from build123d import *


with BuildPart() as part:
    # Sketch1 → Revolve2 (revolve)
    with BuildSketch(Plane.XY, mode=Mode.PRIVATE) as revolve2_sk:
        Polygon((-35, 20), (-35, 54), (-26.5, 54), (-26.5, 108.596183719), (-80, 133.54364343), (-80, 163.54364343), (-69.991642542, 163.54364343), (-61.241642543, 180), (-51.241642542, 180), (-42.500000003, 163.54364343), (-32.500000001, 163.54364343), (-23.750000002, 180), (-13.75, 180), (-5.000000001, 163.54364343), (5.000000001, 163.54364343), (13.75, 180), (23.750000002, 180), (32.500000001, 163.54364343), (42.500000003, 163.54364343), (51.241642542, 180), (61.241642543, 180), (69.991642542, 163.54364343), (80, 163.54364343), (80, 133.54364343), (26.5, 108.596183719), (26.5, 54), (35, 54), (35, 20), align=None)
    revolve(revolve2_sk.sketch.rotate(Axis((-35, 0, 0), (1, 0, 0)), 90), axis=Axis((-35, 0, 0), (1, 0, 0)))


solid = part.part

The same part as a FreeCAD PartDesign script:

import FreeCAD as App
import Part
import Sketcher
from FreeCAD import Vector
Q = App.Units.Quantity

doc = App.newDocument("Part")
body = doc.addObject("PartDesign::Body", "Body")

sketch1 = body.newObject("Sketcher::SketchObject", "Sketch")
sketch1.AttachmentSupport = (doc.getObject("XY_Plane"), [""])
sketch1.MapMode = "FlatFace"
sketch1.addGeometry([
    Part.LineSegment(Vector(-35, 54, 0), Vector(-35, 20, 0)),
    Part.LineSegment(Vector(-35, 20, 0), Vector(35, 20, 0)),
    Part.LineSegment(Vector(35, 20, 0), Vector(35, 54, 0)),
    Part.LineSegment(Vector(35, 54, 0), Vector(26, 54, 0)),
    Part.LineSegment(Vector(26, 54, 0), Vector(26, 109, 0)),
    Part.LineSegment(Vector(26, 109, 0), Vector(80, 134, 0)),
    Part.LineSegment(Vector(80, 134, 0), Vector(80, 164, 0)),
    Part.LineSegment(Vector(80, 164, 0), Vector(70, 164, 0)),
    Part.LineSegment(Vector(70, 164, 0), Vector(61, 180, 0)),
    Part.LineSegment(Vector(61, 180, 0), Vector(51, 180, 0)),
    Part.LineSegment(Vector(51, 180, 0), Vector(43, 164, 0)),
    Part.LineSegment(Vector(43, 164, 0), Vector(33, 164, 0)),
    Part.LineSegment(Vector(33, 164, 0), Vector(24, 180, 0)),
    Part.LineSegment(Vector(24, 180, 0), Vector(14, 180, 0)),
    Part.LineSegment(Vector(14, 180, 0), Vector(5, 164, 0)),
    Part.LineSegment(Vector(5, 164, 0), Vector(-5, 164, 0)),
    Part.LineSegment(Vector(-5, 164, 0), Vector(-14, 180, 0)),
    Part.LineSegment(Vector(-14, 180, 0), Vector(-24, 180, 0)),
    Part.LineSegment(Vector(-24, 180, 0), Vector(-33, 164, 0)),
    Part.LineSegment(Vector(-33, 164, 0), Vector(-43, 164, 0)),
    Part.LineSegment(Vector(-43, 164, 0), Vector(-51, 180, 0)),
    Part.LineSegment(Vector(-51, 180, 0), Vector(-61, 180, 0)),
    Part.LineSegment(Vector(-61, 180, 0), Vector(-70, 164, 0)),
    Part.LineSegment(Vector(-70, 164, 0), Vector(-80, 164, 0)),
    Part.LineSegment(Vector(-80, 164, 0), Vector(-80, 134, 0)),
    Part.LineSegment(Vector(-80, 134, 0), Vector(-26, 109, 0)),
    Part.LineSegment(Vector(-26, 109, 0), Vector(-26, 54, 0)),
    Part.LineSegment(Vector(-26, 54, 0), Vector(-35, 54, 0)),
], False)
sketch1.addConstraint([
    Sketcher.Constraint("Coincident", 0, 2, 1, 1),
    Sketcher.Constraint("Coincident", 1, 2, 2, 1),
    Sketcher.Constraint("Coincident", 2, 2, 3, 1),
    Sketcher.Constraint("Coincident", 3, 2, 4, 1),
    Sketcher.Constraint("Coincident", 4, 2, 5, 1),
    Sketcher.Constraint("Coincident", 5, 2, 6, 1),
    Sketcher.Constraint("Coincident", 6, 2, 7, 1),
    Sketcher.Constraint("Coincident", 7, 2, 8, 1),
    Sketcher.Constraint("Coincident", 8, 2, 9, 1),
    Sketcher.Constraint("Coincident", 9, 2, 10, 1),
    Sketcher.Constraint("Coincident", 10, 2, 11, 1),
    Sketcher.Constraint("Coincident", 11, 2, 12, 1),
    Sketcher.Constraint("Coincident", 12, 2, 13, 1),
    Sketcher.Constraint("Coincident", 13, 2, 14, 1),
    Sketcher.Constraint("Coincident", 14, 2, 15, 1),
    Sketcher.Constraint("Coincident", 15, 2, 16, 1),
    Sketcher.Constraint("Coincident", 16, 2, 17, 1),
    Sketcher.Constraint("Coincident", 17, 2, 18, 1),
    Sketcher.Constraint("Coincident", 18, 2, 19, 1),
    Sketcher.Constraint("Coincident", 19, 2, 20, 1),
    Sketcher.Constraint("Coincident", 20, 2, 21, 1),
    Sketcher.Constraint("Coincident", 21, 2, 22, 1),
    Sketcher.Constraint("Coincident", 22, 2, 23, 1),
    Sketcher.Constraint("Coincident", 23, 2, 24, 1),
    Sketcher.Constraint("Coincident", 24, 2, 25, 1),
    Sketcher.Constraint("Coincident", 25, 2, 26, 1),
    Sketcher.Constraint("Coincident", 26, 2, 27, 1),
    Sketcher.Constraint("Coincident", 27, 2, 0, 1),
    Sketcher.Constraint("Vertical", 0),
    Sketcher.Constraint("Horizontal", 1),
    Sketcher.Constraint("Vertical", 2),
    Sketcher.Constraint("Horizontal", 3),
    Sketcher.Constraint("Vertical", 4),
    Sketcher.Constraint("Vertical", 6),
    Sketcher.Constraint("Horizontal", 7),
    Sketcher.Constraint("Horizontal", 9),
    Sketcher.Constraint("Horizontal", 11),
    Sketcher.Constraint("Horizontal", 13),
    Sketcher.Constraint("Horizontal", 15),
    Sketcher.Constraint("Horizontal", 17),
    Sketcher.Constraint("Horizontal", 19),
    Sketcher.Constraint("Horizontal", 21),
    Sketcher.Constraint("Horizontal", 23),
    Sketcher.Constraint("Vertical", 24),
    Sketcher.Constraint("Vertical", 26),
    Sketcher.Constraint("Horizontal", 27),
    Sketcher.Constraint("Symmetric", 13, 2, 16, 2, -2),
    Sketcher.Constraint("Symmetric", 11, 2, 18, 2, -2),
    Sketcher.Constraint("Symmetric", 9, 2, 20, 2, -2),
    Sketcher.Constraint("Symmetric", 7, 2, 22, 2, -2),
    Sketcher.Constraint("Symmetric", 5, 2, 24, 2, -2),
    Sketcher.Constraint("Symmetric", 4, 2, 25, 2, -2),
    Sketcher.Constraint("Symmetric", 2, 2, 27, 2, -2),
    Sketcher.Constraint("Parallel", 8, 12),
    Sketcher.Constraint("Parallel", 12, 16),
    Sketcher.Constraint("Parallel", 14, 18),
    Sketcher.Constraint("Parallel", 18, 22),
    Sketcher.Constraint("Horizontal", 7, 2, 10, 2),
    Sketcher.Constraint("Horizontal", 9, 2, 12, 2),
    Sketcher.Constraint("Horizontal", 11, 2, 14, 2),
    Sketcher.Constraint("Equal", 9, 11),
    Sketcher.Constraint("Equal", 11, 13),
    Sketcher.Constraint("Equal", 13, 15),
    Sketcher.Constraint("Equal", 15, 17),
    Sketcher.Constraint("Equal", 17, 19),
    Sketcher.Constraint("DistanceX", 1, 1, 1, 2, 70.0),
    Sketcher.Constraint("DistanceX", 9, 2, 9, 1, 10.0),
    Sketcher.Constraint("DistanceY", 0, 2, 0, 1, 34.0),
    Sketcher.Constraint("DistanceY", 6, 1, 6, 2, 30.0),
    Sketcher.Constraint("Angle", 5, Q("25 deg")),
    Sketcher.Constraint("Angle", 8, Q("118 deg")),
    Sketcher.Constraint("DistanceX", 3, 2, 3, 1, 8.5),
    Sketcher.Constraint("DistanceY", -1, 1, 0, 2, 20.0),
    Sketcher.Constraint("DistanceX", -1, 1, 5, 2, 80.0),
    Sketcher.Constraint("DistanceY", -1, 1, 8, 2, 180.0),
    Sketcher.Constraint("DistanceX", 18, 2, 25, 2, 6.0),
    Sketcher.Constraint("DistanceX", 7, 2, 7, 1, 10.008357),
])
revolution = body.newObject("PartDesign::Revolution", "Revolution")
revolution.Profile = sketch1
revolution.ReferenceAxis = (sketch1, ["H_Axis"])
revolution.Angle = 360

doc.recompute()
